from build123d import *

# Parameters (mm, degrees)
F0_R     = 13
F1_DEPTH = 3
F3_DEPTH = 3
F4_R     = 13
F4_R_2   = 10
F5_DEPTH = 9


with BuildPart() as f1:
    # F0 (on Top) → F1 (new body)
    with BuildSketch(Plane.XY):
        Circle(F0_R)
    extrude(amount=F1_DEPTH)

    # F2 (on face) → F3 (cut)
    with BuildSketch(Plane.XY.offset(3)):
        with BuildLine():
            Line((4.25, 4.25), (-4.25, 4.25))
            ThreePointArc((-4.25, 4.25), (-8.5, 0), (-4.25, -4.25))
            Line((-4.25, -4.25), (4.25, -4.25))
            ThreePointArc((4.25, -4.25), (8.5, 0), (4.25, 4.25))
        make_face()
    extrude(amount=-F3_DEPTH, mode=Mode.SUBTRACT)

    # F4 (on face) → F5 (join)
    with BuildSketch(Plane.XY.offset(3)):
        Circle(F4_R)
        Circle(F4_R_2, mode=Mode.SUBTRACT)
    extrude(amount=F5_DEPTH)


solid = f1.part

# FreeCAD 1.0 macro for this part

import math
import FreeCAD as App
import Part
import Sketcher
Q = App.Units.Quantity

doc = App.newDocument("Part")
body = doc.addObject("PartDesign::Body", "Body")

# Sketch on XY plane
sketch1 = body.newObject("Sketcher::SketchObject", "Sketch")
sketch1.AttachmentSupport = (doc.getObject("XY_Plane"), [""])
sketch1.MapMode = "FlatFace"
sketch1.addGeometry(Part.Circle(App.Vector(0, 0, 0), App.Vector(0, 0, 1), 13), False)
sketch1.addConstraint(Sketcher.Constraint("Coincident", 0, 3, -1, 1))
sketch1.addConstraint(Sketcher.Constraint("Diameter", 0, Q("26 mm")))
pad1 = body.newObject("PartDesign::Pad", "Pad")
pad1.Profile = sketch1
pad1.Length = 3

# Sketch on XY plane
sketch2 = body.newObject("Sketcher::SketchObject", "Sketch001")
sketch2.AttachmentSupport = (doc.getObject("XY_Plane"), [""])
sketch2.MapMode = "FlatFace"
sketch2.AttachmentOffset = App.Placement(App.Vector(0, 0, 3), App.Rotation())
sketch2.addGeometry(Part.LineSegment(App.Vector(4.2, 4.2, 0), App.Vector(-4.2, 4.2, 0)), False)
sketch2.addGeometry(Part.ArcOfCircle(Part.Circle(App.Vector(-4.2, 0, 0), App.Vector(0, 0, 1), 4.2), math.radians(90), math.radians(270)), False)
sketch2.addGeometry(Part.LineSegment(App.Vector(-4.2, -4.2, 0), App.Vector(4.2, -4.2, 0)), False)
sketch2.addGeometry(Part.ArcOfCircle(Part.Circle(App.Vector(4.2, 0, 0), App.Vector(0, 0, 1), 4.2), math.radians(-90), math.radians(90)), False)
sketch2.addConstraint(Sketcher.Constraint("Tangent", 0, 2, 1, 1))
sketch2.addConstraint(Sketcher.Constraint("Tangent", 1, 2, 2, 1))
sketch2.addConstraint(Sketcher.Constraint("Tangent", 2, 2, 3, 1))
sketch2.addConstraint(Sketcher.Constraint("Tangent", 3, 2, 0, 1))
sketch2.addConstraint(Sketcher.Constraint("Horizontal", 0))
sketch2.addConstraint(Sketcher.Constraint("Horizontal", 2))
sketch2.addConstraint(Sketcher.Constraint("Symmetric", 1, 3, 3, 3, -1, 1))
sketch2.addConstraint(Sketcher.Constraint("Radius", 1, Q("4.25 mm")))
sketch2.addConstraint(Sketcher.Constraint("DistanceX", 0, 2, 0, 1, Q("8.5 mm")))
pocket1 = body.newObject("PartDesign::Pocket", "Pocket")
pocket1.Profile = sketch2
pocket1.Length = 3

# Sketch on XY plane
sketch3 = body.newObject("Sketcher::SketchObject", "Sketch002")
sketch3.AttachmentSupport = (doc.getObject("XY_Plane"), [""])
sketch3.MapMode = "FlatFace"
sketch3.AttachmentOffset = App.Placement(App.Vector(0, 0, 3), App.Rotation())
sketch3.addGeometry(Part.Circle(App.Vector(0, 0, 0), App.Vector(0, 0, 1), 13), False)
sketch3.addGeometry(Part.Circle(App.Vector(0, 0, 0), App.Vector(0, 0, 1), 10), False)
sketch3.addConstraint(Sketcher.Constraint("Coincident", 0, 3, -1, 1))
sketch3.addConstraint(Sketcher.Constraint("Coincident", 1, 3, -1, 1))
sketch3.addConstraint(Sketcher.Constraint("Diameter", 0, Q("26 mm")))
sketch3.addConstraint(Sketcher.Constraint("Diameter", 1, Q("20 mm")))
pad2 = body.newObject("PartDesign::Pad", "Pad001")
pad2.Profile = sketch3
pad2.Length = 9

doc.recompute()
